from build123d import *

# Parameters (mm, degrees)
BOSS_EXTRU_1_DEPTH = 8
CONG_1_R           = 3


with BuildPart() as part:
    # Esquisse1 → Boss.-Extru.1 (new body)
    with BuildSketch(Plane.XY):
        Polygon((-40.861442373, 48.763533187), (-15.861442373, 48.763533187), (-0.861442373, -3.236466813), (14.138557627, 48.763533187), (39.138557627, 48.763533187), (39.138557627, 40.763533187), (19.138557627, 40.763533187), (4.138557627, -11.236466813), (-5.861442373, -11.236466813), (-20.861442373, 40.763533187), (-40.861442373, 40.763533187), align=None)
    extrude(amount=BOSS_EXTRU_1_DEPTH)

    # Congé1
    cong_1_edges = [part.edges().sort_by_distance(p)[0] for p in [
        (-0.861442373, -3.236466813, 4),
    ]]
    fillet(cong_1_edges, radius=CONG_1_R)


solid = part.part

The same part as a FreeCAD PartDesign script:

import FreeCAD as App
import Part
import Sketcher
Q = App.Units.Quantity


def edges_at(feature, points):
    """Names of the edges that pass closest to the given points."""
    edges = feature.Shape.Edges
    near = lambda p: min(range(len(edges)), key=lambda i: edges[i].distToShape(Part.Vertex(*p))[0])
    return sorted({f"Edge{near(p) + 1}" for p in points})


def add_polygon(sketch, points):
    """Adds a closed chain of lines whose ends are joined by coincident constraints."""
    first, n = sketch.GeometryCount, len(points)
    for a, b in zip(points, points[1:] + points[:1]):
        sketch.addGeometry(Part.LineSegment(App.Vector(*a, 0), App.Vector(*b, 0)), False)
    for i in range(n):
        sketch.addConstraint(Sketcher.Constraint("Coincident", first + i, 2, first + (i + 1) % n, 1))

doc = App.newDocument("Part")
params = doc.addObject("Spreadsheet::Sheet", "Params")
for row, (alias, value) in enumerate([
    ("sketch1_width", "25 mm"),
    ("sketch1_width2", "20 mm"),
    ("sketch1_height", "8 mm"),
    ("pad1_length", "8 mm"),
    ("fillet_radius", "3 mm"),
], start=1):
    params.set(f"A{row}", alias)
    params.set(f"B{row}", "=" + value)
    params.setAlias(f"B{row}", alias)

body = doc.addObject("PartDesign::Body", "Body")

# Sketch on XY plane
sketch1 = doc.addObject("Sketcher::SketchObject", "Sketch")
body.addObject(sketch1)
sketch1.AttachmentSupport = (doc.XY_Plane, [""])
sketch1.MapMode = "FlatFace"
add_polygon(sketch1, [(-16, 49), (-41, 49), (-41, 41), (-21, 41), (-6, -11), (4, -11), (19, 41), (39, 41), (39, 49), (14, 49), (-1, -3)])  # lines 0-10
sketch1.addConstraint(Sketcher.Constraint("Horizontal", 0))
sketch1.addConstraint(Sketcher.Constraint("Vertical", 1))
sketch1.addConstraint(Sketcher.Constraint("Horizontal", 2))
sketch1.addConstraint(Sketcher.Constraint("Horizontal", 4))
sketch1.addConstraint(Sketcher.Constraint("Horizontal", 6))
sketch1.addConstraint(Sketcher.Constraint("Vertical", 7))
sketch1.addConstraint(Sketcher.Constraint("Horizontal", 8))
sketch1.addConstraint(Sketcher.Constraint("Parallel", 5, 9))
sketch1.addConstraint(Sketcher.Constraint("Parallel", 3, 10))
sketch1.addConstraint(Sketcher.Constraint("Horizontal", 2, 2, 5, 2))
sketch1.addConstraint(Sketcher.Constraint("Horizontal", 0, 2, 7, 2))
sketch1.addConstraint(Sketcher.Constraint("Equal", 2, 6))
sketch1.addConstraint(Sketcher.Constraint("Equal", 0, 8))
sketch1.addConstraint(Sketcher.Constraint("Equal", 3, 5))
sketch1.addConstraint(Sketcher.Constraint("Equal", 5, 9))
sketch1.addConstraint(Sketcher.Constraint("DistanceX", 0, 2, 0, 1, Q("25 mm")))
sketch1.addConstraint(Sketcher.Constraint("DistanceX", 2, 1, 2, 2, Q("20 mm")))
sketch1.addConstraint(Sketcher.Constraint("DistanceY", 1, 2, 1, 1, Q("8 mm")))
sketch1.addConstraint(Sketcher.Constraint("DistanceX", 2, 2, 3, 2, Q("15 mm")))
sketch1.addConstraint(Sketcher.Constraint("DistanceY", 3, 2, 2, 2, Q("52 mm")))
sketch1.addConstraint(Sketcher.Constraint("DistanceX", 0, 2, -1, 1, Q("40.861442 mm")))
sketch1.addConstraint(Sketcher.Constraint("DistanceY", -1, 1, 0, 2, Q("48.763533 mm")))
sketch1.setExpression("Constraints[26]", "Params.sketch1_width")
sketch1.setExpression("Constraints[27]", "Params.sketch1_width2")
sketch1.setExpression("Constraints[28]", "Params.sketch1_height")
pad1 = doc.addObject("PartDesign::Pad", "Pad")
body.addObject(pad1)
pad1.Profile = sketch1
pad1.setExpression("Length", "Params.pad1_length")
doc.recompute()

fillet = doc.addObject("PartDesign::Fillet", "Fillet")
body.addObject(fillet)
fillet.Base = (pad1, edges_at(pad1, [(-0.861, -3.236, 4)]))
fillet.setExpression("Radius", "Params.fillet_radius")

doc.recompute()
